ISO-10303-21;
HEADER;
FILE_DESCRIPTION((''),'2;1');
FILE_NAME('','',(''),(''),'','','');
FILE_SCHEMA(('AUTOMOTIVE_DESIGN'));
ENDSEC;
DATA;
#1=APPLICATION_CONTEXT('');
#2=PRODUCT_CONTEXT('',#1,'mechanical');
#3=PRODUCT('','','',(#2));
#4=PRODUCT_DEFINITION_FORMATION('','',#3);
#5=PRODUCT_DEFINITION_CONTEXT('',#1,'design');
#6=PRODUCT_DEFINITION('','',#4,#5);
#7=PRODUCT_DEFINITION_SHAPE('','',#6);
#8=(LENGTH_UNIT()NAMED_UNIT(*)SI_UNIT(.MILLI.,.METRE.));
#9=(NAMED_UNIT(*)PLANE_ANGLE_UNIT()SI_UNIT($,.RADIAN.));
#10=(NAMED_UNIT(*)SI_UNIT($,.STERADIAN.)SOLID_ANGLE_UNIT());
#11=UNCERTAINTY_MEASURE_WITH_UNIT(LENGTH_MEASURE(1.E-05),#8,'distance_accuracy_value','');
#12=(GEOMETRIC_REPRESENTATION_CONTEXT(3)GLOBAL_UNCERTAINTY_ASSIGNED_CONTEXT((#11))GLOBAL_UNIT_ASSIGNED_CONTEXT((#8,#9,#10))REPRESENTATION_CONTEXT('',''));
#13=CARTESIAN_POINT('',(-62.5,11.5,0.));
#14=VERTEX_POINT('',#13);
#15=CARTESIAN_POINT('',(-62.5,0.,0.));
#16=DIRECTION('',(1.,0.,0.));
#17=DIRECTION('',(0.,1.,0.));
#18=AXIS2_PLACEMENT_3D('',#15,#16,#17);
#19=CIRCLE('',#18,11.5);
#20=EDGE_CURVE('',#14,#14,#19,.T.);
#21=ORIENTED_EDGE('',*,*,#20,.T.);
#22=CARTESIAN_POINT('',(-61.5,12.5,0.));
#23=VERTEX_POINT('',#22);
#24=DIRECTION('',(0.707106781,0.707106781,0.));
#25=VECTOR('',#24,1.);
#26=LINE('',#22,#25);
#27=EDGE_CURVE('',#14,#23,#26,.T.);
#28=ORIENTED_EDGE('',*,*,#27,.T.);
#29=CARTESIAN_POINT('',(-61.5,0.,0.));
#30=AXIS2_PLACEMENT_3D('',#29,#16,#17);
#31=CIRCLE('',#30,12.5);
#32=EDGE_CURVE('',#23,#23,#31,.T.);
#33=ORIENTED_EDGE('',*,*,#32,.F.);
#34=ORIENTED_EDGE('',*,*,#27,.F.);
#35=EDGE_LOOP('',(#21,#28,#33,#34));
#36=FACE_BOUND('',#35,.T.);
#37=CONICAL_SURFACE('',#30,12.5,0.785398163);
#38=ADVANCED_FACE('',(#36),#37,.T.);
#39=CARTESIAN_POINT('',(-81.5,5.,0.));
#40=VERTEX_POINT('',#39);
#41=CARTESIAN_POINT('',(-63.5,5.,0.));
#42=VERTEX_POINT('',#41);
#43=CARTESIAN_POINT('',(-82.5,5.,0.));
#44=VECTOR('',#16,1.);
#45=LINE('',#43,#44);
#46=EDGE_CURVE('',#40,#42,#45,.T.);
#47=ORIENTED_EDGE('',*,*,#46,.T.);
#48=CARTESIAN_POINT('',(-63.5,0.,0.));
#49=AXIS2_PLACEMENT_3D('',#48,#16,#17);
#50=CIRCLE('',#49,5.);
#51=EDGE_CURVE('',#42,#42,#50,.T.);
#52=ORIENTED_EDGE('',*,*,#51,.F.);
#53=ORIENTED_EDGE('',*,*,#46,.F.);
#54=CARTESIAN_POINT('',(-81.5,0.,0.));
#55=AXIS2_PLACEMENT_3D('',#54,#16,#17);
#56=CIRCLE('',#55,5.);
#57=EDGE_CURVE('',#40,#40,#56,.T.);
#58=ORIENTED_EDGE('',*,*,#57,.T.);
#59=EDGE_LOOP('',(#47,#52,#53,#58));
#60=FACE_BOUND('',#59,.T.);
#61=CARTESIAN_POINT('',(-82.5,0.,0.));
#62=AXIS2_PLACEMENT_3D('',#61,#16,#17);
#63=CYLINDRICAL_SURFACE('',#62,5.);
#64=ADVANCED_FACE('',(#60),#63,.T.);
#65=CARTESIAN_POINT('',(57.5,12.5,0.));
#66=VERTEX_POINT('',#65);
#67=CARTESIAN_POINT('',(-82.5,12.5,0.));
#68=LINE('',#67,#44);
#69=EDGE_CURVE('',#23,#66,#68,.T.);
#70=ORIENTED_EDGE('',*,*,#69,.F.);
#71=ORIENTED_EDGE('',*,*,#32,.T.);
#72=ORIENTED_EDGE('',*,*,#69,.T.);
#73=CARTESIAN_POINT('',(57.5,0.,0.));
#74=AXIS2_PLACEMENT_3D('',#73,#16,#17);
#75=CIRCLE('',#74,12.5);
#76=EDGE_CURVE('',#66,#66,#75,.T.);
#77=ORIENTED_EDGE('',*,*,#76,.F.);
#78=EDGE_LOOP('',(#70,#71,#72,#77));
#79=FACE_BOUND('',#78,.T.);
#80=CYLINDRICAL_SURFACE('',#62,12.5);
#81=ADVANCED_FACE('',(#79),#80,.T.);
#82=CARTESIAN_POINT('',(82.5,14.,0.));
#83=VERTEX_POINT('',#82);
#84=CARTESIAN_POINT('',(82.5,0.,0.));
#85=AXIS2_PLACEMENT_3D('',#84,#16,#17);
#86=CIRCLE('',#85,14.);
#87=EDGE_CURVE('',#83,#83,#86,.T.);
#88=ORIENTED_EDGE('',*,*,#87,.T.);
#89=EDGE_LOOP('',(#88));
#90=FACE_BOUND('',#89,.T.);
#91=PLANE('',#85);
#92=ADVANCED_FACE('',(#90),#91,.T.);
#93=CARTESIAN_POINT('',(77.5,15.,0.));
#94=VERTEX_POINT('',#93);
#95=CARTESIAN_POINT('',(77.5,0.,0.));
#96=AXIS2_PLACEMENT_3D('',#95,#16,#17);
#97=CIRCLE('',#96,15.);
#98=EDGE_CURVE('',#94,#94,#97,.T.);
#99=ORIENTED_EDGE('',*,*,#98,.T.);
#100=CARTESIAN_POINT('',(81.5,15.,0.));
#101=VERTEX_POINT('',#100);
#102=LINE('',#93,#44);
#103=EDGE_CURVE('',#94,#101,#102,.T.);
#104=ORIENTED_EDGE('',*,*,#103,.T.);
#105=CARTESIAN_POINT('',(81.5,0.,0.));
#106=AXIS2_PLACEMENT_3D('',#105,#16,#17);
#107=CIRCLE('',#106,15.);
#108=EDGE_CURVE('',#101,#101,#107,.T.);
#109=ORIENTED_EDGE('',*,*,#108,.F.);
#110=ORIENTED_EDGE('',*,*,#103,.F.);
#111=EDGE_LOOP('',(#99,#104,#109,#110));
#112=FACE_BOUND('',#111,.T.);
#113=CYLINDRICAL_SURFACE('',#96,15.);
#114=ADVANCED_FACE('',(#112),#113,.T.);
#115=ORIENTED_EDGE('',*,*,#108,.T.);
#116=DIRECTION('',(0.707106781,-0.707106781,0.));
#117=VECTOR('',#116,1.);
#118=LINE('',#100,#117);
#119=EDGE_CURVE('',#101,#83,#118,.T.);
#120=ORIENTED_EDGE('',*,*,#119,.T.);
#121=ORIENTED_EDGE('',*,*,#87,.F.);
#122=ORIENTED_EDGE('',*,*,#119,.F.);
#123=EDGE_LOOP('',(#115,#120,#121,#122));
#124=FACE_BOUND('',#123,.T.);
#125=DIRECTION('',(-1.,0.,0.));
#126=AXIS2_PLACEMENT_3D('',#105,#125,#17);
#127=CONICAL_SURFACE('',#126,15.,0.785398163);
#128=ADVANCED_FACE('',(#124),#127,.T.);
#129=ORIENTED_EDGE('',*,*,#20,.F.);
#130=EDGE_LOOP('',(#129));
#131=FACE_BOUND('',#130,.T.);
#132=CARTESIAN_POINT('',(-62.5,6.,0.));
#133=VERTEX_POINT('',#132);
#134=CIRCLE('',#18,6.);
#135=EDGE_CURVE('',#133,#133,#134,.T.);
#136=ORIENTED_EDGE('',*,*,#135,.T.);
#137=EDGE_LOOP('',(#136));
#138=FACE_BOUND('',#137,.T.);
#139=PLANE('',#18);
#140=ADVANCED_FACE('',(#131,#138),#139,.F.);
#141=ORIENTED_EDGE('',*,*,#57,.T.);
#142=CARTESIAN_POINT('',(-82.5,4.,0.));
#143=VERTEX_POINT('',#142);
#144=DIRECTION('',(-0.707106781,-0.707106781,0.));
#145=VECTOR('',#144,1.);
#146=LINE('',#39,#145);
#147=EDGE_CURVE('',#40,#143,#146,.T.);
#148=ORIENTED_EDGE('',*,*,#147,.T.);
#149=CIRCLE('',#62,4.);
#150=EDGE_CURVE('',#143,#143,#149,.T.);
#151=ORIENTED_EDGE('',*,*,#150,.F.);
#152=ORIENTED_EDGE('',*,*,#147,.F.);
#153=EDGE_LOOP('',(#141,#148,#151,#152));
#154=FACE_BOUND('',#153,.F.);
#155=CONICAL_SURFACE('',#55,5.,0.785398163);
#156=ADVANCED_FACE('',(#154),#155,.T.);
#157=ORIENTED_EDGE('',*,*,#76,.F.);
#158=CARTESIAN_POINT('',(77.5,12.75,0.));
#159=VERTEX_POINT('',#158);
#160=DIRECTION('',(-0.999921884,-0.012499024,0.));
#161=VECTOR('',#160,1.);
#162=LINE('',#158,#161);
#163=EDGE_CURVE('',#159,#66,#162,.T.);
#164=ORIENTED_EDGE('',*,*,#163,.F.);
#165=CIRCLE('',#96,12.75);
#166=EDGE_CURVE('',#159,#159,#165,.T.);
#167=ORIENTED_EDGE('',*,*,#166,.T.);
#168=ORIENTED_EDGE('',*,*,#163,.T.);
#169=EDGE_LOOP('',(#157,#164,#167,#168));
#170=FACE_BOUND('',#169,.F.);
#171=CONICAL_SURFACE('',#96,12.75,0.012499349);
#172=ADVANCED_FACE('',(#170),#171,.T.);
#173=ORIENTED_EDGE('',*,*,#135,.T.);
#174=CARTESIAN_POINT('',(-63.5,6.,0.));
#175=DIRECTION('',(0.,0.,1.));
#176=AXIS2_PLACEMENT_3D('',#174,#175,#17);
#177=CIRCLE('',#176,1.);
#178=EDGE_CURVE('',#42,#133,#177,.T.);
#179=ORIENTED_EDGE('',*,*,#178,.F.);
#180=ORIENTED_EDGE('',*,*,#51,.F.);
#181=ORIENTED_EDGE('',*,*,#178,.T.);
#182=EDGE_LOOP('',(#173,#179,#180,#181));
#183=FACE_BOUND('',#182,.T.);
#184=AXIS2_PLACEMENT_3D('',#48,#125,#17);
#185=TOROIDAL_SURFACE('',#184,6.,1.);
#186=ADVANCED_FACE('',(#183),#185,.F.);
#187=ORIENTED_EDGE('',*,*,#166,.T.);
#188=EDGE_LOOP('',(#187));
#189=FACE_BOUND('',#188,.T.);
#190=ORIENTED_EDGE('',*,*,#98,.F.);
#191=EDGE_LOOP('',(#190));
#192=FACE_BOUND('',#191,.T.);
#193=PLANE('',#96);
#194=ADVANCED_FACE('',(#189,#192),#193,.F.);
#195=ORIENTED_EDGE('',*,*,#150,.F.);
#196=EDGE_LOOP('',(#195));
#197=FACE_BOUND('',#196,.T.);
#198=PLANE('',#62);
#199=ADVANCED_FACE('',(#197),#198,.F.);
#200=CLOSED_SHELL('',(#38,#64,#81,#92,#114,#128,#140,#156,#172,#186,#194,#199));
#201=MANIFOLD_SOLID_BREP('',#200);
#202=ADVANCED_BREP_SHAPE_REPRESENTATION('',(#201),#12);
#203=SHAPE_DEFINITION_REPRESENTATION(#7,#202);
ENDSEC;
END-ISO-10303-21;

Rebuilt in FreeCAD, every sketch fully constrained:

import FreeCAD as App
import Part
import Sketcher

V = App.Vector
Q = App.Units.Quantity


def edges_at(feature, points):
    """Names of the edges that pass closest to the given points."""
    edges = feature.Shape.Edges
    near = lambda p: min(range(len(edges)), key=lambda i: edges[i].distToShape(Part.Vertex(*p))[0])
    return sorted({f"Edge{near(p) + 1}" for p in points})

doc = App.newDocument("Part")
body = doc.addObject("PartDesign::Body", "Body")

sketch1 = body.newObject("Sketcher::SketchObject", "Sketch")
sketch1.AttachmentSupport = (doc.getObject("XY_Plane"), [""])
sketch1.MapMode = "FlatFace"
sketch1.addGeometry(Part.LineSegment(V(-82.5, 0, 0), V(82.5, 0, 0)), False)
sketch1.addGeometry(Part.LineSegment(V(82.5, 0, 0), V(82.5, 15, 0)), False)
sketch1.addGeometry(Part.LineSegment(V(82.5, 15, 0), V(77.5, 15, 0)), False)
sketch1.addGeometry(Part.LineSegment(V(77.5, 15, 0), V(77.5, 12.75, 0)), False)
sketch1.addGeometry(Part.LineSegment(V(77.5, 12.75, 0), V(57.5, 12.5, 0)), False)
sketch1.addGeometry(Part.LineSegment(V(57.5, 12.5, 0), V(-62.5, 12.5, 0)), False)
sketch1.addGeometry(Part.LineSegment(V(-62.5, 12.5, 0), V(-62.5, 5, 0)), False)
sketch1.addGeometry(Part.LineSegment(V(-62.5, 5, 0), V(-82.5, 5, 0)), False)
sketch1.addGeometry(Part.LineSegment(V(-82.5, 5, 0), V(-82.5, 0, 0)), False)
sketch1.addConstraint(Sketcher.Constraint("Coincident", 0, 2, 1, 1))
sketch1.addConstraint(Sketcher.Constraint("Coincident", 1, 2, 2, 1))
sketch1.addConstraint(Sketcher.Constraint("Coincident", 2, 2, 3, 1))
sketch1.addConstraint(Sketcher.Constraint("Coincident", 3, 2, 4, 1))
sketch1.addConstraint(Sketcher.Constraint("Coincident", 4, 2, 5, 1))
sketch1.addConstraint(Sketcher.Constraint("Coincident", 5, 2, 6, 1))
sketch1.addConstraint(Sketcher.Constraint("Coincident", 6, 2, 7, 1))
sketch1.addConstraint(Sketcher.Constraint("Coincident", 7, 2, 8, 1))
sketch1.addConstraint(Sketcher.Constraint("Coincident", 8, 2, 0, 1))
sketch1.addConstraint(Sketcher.Constraint("Horizontal", 0))
sketch1.addConstraint(Sketcher.Constraint("Vertical", 1))
sketch1.addConstraint(Sketcher.Constraint("Horizontal", 2))
sketch1.addConstraint(Sketcher.Constraint("Vertical", 3))
sketch1.addConstraint(Sketcher.Constraint("Horizontal", 5))
sketch1.addConstraint(Sketcher.Constraint("Vertical", 6))
sketch1.addConstraint(Sketcher.Constraint("Horizontal", 7))
sketch1.addConstraint(Sketcher.Constraint("Vertical", 8))
sketch1.addConstraint(Sketcher.Constraint("Symmetric", 0, 2, 8, 2, -1, 1))
sketch1.addConstraint(Sketcher.Constraint("Equal", 2, 8))
sketch1.addConstraint(Sketcher.Constraint("DistanceX", 0, 1, 0, 2, Q("165 mm")))
sketch1.addConstraint(Sketcher.Constraint("DistanceX", 2, 2, 2, 1, Q("5 mm")))
sketch1.addConstraint(Sketcher.Constraint("DistanceX", 7, 2, 7, 1, Q("20 mm")))
sketch1.addConstraint(Sketcher.Constraint("DistanceX", 4, 2, 3, 2, Q("20 mm")))
sketch1.addConstraint(Sketcher.Constraint("DistanceY", 6, 2, 2, 2, Q("10 mm")))
sketch1.addConstraint(Sketcher.Constraint("DistanceY", 4, 2, 3, 2, Q("0.25 mm")))
sketch1.addConstraint(Sketcher.Constraint("DistanceY", 6, 2, 6, 1, Q("7.5 mm")))
revolution = body.newObject("PartDesign::Revolution", "Revolution")
revolution.Profile = sketch1
revolution.ReferenceAxis = (sketch1, ["H_Axis"])
revolution.Angle = 360
doc.recompute()

fillet = body.newObject("PartDesign::Fillet", "Fillet")
fillet.Base = (revolution, edges_at(revolution, [(-62.5, -5, 0)]))
fillet.Radius = 1
doc.recompute()

chamfer = body.newObject("PartDesign::Chamfer", "Chamfer")
chamfer.Base = (fillet, edges_at(fillet, [(82.5, -15, 0), (-62.5, -12.5, 0), (-82.5, -5, 0)]))
chamfer.Size = 1

doc.recompute()
